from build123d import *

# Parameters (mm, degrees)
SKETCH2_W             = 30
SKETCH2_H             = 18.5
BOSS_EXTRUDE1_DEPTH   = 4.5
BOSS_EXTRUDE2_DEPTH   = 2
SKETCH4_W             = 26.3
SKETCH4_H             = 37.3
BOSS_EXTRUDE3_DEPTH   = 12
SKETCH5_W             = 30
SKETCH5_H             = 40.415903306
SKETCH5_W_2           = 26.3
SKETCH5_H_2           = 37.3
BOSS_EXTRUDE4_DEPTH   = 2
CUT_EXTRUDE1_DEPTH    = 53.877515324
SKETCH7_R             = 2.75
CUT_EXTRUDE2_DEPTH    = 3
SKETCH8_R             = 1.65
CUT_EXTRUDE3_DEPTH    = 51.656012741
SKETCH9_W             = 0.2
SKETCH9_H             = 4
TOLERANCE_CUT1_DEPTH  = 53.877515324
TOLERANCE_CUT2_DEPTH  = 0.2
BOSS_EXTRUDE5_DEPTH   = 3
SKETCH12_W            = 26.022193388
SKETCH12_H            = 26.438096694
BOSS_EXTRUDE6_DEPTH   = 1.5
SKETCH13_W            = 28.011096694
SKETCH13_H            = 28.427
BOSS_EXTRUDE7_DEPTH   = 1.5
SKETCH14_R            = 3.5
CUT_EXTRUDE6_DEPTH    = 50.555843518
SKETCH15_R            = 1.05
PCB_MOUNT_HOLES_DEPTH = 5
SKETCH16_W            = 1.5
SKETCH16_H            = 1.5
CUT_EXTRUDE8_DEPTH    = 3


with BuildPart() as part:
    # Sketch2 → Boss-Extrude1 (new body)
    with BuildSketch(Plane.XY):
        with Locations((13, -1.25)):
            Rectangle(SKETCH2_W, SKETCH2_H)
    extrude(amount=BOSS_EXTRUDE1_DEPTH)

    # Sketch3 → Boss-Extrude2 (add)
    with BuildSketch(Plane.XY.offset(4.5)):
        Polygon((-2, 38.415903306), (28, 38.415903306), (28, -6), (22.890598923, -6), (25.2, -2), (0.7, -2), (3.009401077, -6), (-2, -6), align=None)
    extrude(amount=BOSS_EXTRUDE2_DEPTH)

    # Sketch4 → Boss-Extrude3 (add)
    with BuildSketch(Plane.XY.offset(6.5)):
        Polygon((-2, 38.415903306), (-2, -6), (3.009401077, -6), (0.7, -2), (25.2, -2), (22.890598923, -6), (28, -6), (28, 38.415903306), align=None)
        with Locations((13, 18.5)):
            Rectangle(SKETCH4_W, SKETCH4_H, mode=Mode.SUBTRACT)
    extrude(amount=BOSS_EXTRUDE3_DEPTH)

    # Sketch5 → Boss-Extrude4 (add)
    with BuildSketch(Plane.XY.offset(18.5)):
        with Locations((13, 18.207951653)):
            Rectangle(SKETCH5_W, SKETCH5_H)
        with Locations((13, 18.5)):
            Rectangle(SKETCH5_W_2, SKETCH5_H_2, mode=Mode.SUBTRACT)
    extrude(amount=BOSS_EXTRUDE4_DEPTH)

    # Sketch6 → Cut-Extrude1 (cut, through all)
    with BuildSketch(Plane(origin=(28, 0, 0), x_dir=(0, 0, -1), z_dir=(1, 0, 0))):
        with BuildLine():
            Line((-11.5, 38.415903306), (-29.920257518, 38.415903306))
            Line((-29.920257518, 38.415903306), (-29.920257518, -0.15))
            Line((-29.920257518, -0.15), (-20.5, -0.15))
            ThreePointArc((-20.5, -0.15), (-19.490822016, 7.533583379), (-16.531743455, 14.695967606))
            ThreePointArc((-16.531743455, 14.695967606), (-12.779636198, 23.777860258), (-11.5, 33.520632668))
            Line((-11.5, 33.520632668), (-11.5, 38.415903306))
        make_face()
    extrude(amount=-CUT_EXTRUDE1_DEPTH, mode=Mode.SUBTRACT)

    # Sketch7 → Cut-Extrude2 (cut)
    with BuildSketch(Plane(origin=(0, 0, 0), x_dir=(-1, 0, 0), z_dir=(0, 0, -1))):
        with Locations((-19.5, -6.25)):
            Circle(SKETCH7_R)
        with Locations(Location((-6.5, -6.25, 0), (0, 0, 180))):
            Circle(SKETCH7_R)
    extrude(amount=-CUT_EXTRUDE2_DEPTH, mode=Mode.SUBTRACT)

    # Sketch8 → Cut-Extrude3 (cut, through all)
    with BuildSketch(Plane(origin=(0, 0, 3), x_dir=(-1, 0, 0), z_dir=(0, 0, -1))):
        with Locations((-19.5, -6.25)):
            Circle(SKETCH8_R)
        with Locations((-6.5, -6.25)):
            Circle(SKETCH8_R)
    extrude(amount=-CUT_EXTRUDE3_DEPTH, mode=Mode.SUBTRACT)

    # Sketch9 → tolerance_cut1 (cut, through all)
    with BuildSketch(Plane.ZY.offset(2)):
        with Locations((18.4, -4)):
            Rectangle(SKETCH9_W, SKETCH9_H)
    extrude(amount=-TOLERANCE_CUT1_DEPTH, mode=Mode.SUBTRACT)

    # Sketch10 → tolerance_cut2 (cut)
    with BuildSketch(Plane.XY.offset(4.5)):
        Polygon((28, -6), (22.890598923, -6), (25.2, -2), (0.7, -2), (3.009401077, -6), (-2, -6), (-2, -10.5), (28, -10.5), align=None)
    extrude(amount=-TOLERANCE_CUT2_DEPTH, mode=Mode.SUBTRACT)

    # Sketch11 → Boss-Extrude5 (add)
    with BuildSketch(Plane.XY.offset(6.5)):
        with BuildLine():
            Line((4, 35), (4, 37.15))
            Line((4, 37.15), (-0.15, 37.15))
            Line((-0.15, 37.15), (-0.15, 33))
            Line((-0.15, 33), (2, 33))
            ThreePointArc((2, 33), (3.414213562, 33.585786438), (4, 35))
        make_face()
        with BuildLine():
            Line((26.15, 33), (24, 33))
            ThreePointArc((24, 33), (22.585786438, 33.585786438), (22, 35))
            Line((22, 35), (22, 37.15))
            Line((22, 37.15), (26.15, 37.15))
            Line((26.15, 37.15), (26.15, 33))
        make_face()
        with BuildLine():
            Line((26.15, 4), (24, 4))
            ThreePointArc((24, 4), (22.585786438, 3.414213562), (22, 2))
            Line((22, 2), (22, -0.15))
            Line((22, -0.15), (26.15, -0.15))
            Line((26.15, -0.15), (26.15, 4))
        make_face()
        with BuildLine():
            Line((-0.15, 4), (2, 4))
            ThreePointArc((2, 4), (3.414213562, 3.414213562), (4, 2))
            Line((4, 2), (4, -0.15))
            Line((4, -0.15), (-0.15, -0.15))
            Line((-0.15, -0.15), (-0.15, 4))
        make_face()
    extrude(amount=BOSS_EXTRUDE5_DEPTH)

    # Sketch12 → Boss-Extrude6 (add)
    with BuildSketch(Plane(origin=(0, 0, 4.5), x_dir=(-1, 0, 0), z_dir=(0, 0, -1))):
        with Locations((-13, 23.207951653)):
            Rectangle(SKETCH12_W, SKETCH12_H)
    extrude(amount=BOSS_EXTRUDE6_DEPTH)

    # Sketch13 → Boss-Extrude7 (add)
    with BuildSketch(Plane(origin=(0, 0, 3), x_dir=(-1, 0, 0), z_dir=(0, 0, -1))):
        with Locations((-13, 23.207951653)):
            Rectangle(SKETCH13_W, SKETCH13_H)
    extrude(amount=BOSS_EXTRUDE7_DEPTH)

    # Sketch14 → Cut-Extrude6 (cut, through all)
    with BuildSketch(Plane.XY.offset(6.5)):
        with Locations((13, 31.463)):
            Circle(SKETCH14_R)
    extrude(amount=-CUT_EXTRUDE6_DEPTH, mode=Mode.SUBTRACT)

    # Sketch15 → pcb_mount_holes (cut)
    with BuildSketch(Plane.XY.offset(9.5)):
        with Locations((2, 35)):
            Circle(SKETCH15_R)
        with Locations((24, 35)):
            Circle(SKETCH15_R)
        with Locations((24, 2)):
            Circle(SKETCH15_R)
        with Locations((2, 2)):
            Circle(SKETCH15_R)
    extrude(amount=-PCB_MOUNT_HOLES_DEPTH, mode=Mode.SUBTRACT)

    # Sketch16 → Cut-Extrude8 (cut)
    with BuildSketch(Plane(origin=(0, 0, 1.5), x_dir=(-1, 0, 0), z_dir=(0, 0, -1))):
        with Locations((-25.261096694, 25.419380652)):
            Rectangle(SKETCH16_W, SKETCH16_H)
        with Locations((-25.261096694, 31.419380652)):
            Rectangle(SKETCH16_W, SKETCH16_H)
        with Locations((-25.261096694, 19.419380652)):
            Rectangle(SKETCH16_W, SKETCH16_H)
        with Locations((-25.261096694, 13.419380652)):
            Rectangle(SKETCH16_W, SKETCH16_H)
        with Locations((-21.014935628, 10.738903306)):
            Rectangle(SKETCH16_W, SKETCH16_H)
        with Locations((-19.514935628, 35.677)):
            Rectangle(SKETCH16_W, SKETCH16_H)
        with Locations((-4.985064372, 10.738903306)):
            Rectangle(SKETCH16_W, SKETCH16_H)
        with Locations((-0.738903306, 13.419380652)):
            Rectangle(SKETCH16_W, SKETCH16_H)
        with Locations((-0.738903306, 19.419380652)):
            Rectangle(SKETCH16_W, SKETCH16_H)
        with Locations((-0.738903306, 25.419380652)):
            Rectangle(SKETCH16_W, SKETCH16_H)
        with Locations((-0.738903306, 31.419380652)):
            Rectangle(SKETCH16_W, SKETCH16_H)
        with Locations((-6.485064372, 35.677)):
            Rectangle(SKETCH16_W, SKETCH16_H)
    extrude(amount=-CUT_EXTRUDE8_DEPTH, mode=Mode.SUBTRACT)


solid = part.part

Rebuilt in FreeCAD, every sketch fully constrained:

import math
import FreeCAD as App
import Part
import Sketcher
from FreeCAD import Vector
Q = App.Units.Quantity

doc = App.newDocument("Part")
params = doc.addObject("Spreadsheet::Sheet", "Params")
for row, (alias, value) in enumerate([
    ("sketch1_width", "30 mm"),
    ("sketch1_height", "18.5 mm"),
    ("pad1_length", "4.5 mm"),
    ("sketch2_width", "30 mm"),
    ("sketch2_width2", "24.5 mm"),
    ("pad2_length", "2 mm"),
    ("sketch3_width", "30 mm"),
    ("sketch3_width2", "24.5 mm"),
    ("sketch3_width3", "26.3 mm"),
    ("sketch3_height", "37.3 mm"),
    ("pad3_length", "12 mm"),
    ("sketch4_width", "30 mm"),
    ("sketch4_width2", "26.3 mm"),
    ("sketch4_height", "37.3 mm"),
    ("pad4_length", "2 mm"),
    ("sketch6_diameter", "5.5 mm"),
    ("pocket2_length", "3 mm"),
    ("sketch7_diameter", "3.3 mm"),
    ("sketch8_width", "4 mm"),
    ("sketch8_height", "0.2 mm"),
    ("sketch9_width", "30 mm"),
    ("sketch9_width2", "24.5 mm"),
    ("sketch9_height", "4.5 mm"),
    ("pocket5_length", "0.2 mm"),
    ("sketch10_radius", "2 mm"),
    ("sketch10_width", "4.15 mm"),
    ("pad5_length", "3 mm"),
    ("pad6_length", "1.5 mm"),
    ("pad7_length", "1.5 mm"),
    ("sketch13_diameter", "7 mm"),
    ("sketch14_diameter", "2.1 mm"),
    ("pocket7_length", "5 mm"),
    ("sketch15_width", "1.5 mm"),
    ("pocket8_length", "3 mm"),
], start=1):
    params.set(f"A{row}", alias)
    params.set(f"B{row}", "=" + value)
    params.setAlias(f"B{row}", alias)

body = doc.addObject("PartDesign::Body", "Body")

# Sketch on XY plane
sketch1 = body.newObject("Sketcher::SketchObject", "Sketch")
sketch1.AttachmentSupport = (doc.getObject("XY_Plane"), [""])
sketch1.MapMode = "FlatFace"
sketch1.addGeometry([
    Part.LineSegment(Vector(-2, 8, 0), Vector(-2, -10, 0)),
    Part.LineSegment(Vector(-2, -10, 0), Vector(28, -10, 0)),
    Part.LineSegment(Vector(28, -10, 0), Vector(28, 8, 0)),
    Part.LineSegment(Vector(28, 8, 0), Vector(-2, 8, 0)),
], False)
sketch1.addConstraint([
    Sketcher.Constraint("Coincident", 0, 2, 1, 1),
    Sketcher.Constraint("Coincident", 1, 2, 2, 1),
    Sketcher.Constraint("Coincident", 2, 2, 3, 1),
    Sketcher.Constraint("Coincident", 3, 2, 0, 1),
    Sketcher.Constraint("Vertical", 0),
    Sketcher.Constraint("Horizontal", 1),
    Sketcher.Constraint("Vertical", 2),
    Sketcher.Constraint("Horizontal", 3),
    Sketcher.Constraint("DistanceX", 1, 1, 1, 2, 30.0),
    Sketcher.Constraint("DistanceY", 0, 2, 0, 1, 18.5),
    Sketcher.Constraint("DistanceX", 0, 2, -1, 1, 2.0),
    Sketcher.Constraint("DistanceY", -1, 1, 2, 2, 8.0),
])
sketch1.setExpression("Constraints[8]", "Params.sketch1_width")
sketch1.setExpression("Constraints[9]", "Params.sketch1_height")
pad1 = body.newObject("PartDesign::Pad", "Pad")
pad1.Profile = sketch1
pad1.setExpression("Length", "Params.pad1_length")

# Sketch on XY plane
sketch2 = body.newObject("Sketcher::SketchObject", "Sketch001")
sketch2.AttachmentSupport = (doc.getObject("XY_Plane"), [""])
sketch2.MapMode = "FlatFace"
sketch2.AttachmentOffset = App.Placement(Vector(0, 0, 4.5), App.Rotation())
sketch2.addGeometry([
    Part.LineSegment(Vector(28, 38.4, 0), Vector(-2, 38.4, 0)),  # 0
    Part.LineSegment(Vector(-2, 38.4, 0), Vector(-2, -6, 0)),  # 1
    Part.LineSegment(Vector(-2, -6, 0), Vector(3, -6, 0)),  # 2
    Part.LineSegment(Vector(3, -6, 0), Vector(0.7, -2, 0)),  # 3
    Part.LineSegment(Vector(0.7, -2, 0), Vector(25.2, -2, 0)),  # 4
    Part.LineSegment(Vector(25.2, -2, 0), Vector(22.9, -6, 0)),  # 5
    Part.LineSegment(Vector(22.9, -6, 0), Vector(28, -6, 0)),  # 6
    Part.LineSegment(Vector(28, -6, 0), Vector(28, 38.4, 0)),  # 7
], False)
sketch2.addConstraint([
    Sketcher.Constraint("Coincident", 0, 2, 1, 1),
    Sketcher.Constraint("Coincident", 1, 2, 2, 1),
    Sketcher.Constraint("Coincident", 2, 2, 3, 1),
    Sketcher.Constraint("Coincident", 3, 2, 4, 1),
    Sketcher.Constraint("Coincident", 4, 2, 5, 1),
    Sketcher.Constraint("Coincident", 5, 2, 6, 1),
    Sketcher.Constraint("Coincident", 6, 2, 7, 1),
    Sketcher.Constraint("Coincident", 7, 2, 0, 1),
    Sketcher.Constraint("Horizontal", 0),
    Sketcher.Constraint("Vertical", 1),
    Sketcher.Constraint("Horizontal", 2),
    Sketcher.Constraint("Horizontal", 4),
    Sketcher.Constraint("Horizontal", 6),
    Sketcher.Constraint("Vertical", 7),
    Sketcher.Constraint("Horizontal", 2, 2, 5, 2),
    Sketcher.Constraint("Equal", 3, 5),
    Sketcher.Constraint("DistanceX", 0, 2, 0, 1, 30.0),
    Sketcher.Constraint("Angle", 3, Q("120 deg")),
    Sketcher.Constraint("DistanceX", 4, 1, 4, 2, 24.5),
    Sketcher.Constraint("DistanceX", 0, 2, -1, 1, 2.0),
    Sketcher.Constraint("DistanceY", 1, 2, -1, 1, 6.0),
    Sketcher.Constraint("DistanceY", 3, 2, -1, 1, 2.0),
    Sketcher.Constraint("DistanceX", -1, 1, 3, 2, 0.7),
    Sketcher.Constraint("DistanceY", 1, 2, 1, 1, 44.415903),
])
sketch2.setExpression("Constraints[16]", "Params.sketch2_width")
sketch2.setExpression("Constraints[18]", "Params.sketch2_width2")
pad2 = body.newObject("PartDesign::Pad", "Pad001")
pad2.Profile = sketch2
pad2.setExpression("Length", "Params.pad2_length")

# Sketch on XY plane
sketch3 = body.newObject("Sketcher::SketchObject", "Sketch002")
sketch3.AttachmentSupport = (doc.getObject("XY_Plane"), [""])
sketch3.MapMode = "FlatFace"
sketch3.AttachmentOffset = App.Placement(Vector(0, 0, 6.5), App.Rotation())
sketch3.addGeometry([
    Part.LineSegment(Vector(-2, 38.4, 0), Vector(-2, -6, 0)),  # 0
    Part.LineSegment(Vector(-2, -6, 0), Vector(3, -6, 0)),  # 1
    Part.LineSegment(Vector(3, -6, 0), Vector(0.7, -2, 0)),  # 2
    Part.LineSegment(Vector(0.7, -2, 0), Vector(25.2, -2, 0)),  # 3
    Part.LineSegment(Vector(25.2, -2, 0), Vector(22.9, -6, 0)),  # 4
    Part.LineSegment(Vector(22.9, -6, 0), Vector(28, -6, 0)),  # 5
    Part.LineSegment(Vector(28, -6, 0), Vector(28, 38.4, 0)),  # 6
    Part.LineSegment(Vector(28, 38.4, 0), Vector(-2, 38.4, 0)),  # 7
    Part.LineSegment(Vector(26.1, -0.1, 0), Vector(-0.1, -0.1, 0)),  # 8
    Part.LineSegment(Vector(-0.1, -0.1, 0), Vector(-0.1, 37.1, 0)),  # 9
    Part.LineSegment(Vector(-0.1, 37.1, 0), Vector(26.1, 37.1, 0)),  # 10
    Part.LineSegment(Vector(26.1, 37.1, 0), Vector(26.1, -0.1, 0)),  # 11
], False)
sketch3.addConstraint([
    Sketcher.Constraint("Coincident", 0, 2, 1, 1),
    Sketcher.Constraint("Coincident", 1, 2, 2, 1),
    Sketcher.Constraint("Coincident", 2, 2, 3, 1),
    Sketcher.Constraint("Coincident", 3, 2, 4, 1),
    Sketcher.Constraint("Coincident", 4, 2, 5, 1),
    Sketcher.Constraint("Coincident", 5, 2, 6, 1),
    Sketcher.Constraint("Coincident", 6, 2, 7, 1),
    Sketcher.Constraint("Coincident", 7, 2, 0, 1),
    Sketcher.Constraint("Coincident", 8, 2, 9, 1),
    Sketcher.Constraint("Coincident", 9, 2, 10, 1),
    Sketcher.Constraint("Coincident", 10, 2, 11, 1),
    Sketcher.Constraint("Coincident", 11, 2, 8, 1),
    Sketcher.Constraint("Vertical", 0),
    Sketcher.Constraint("Horizontal", 1),
    Sketcher.Constraint("Horizontal", 3),
    Sketcher.Constraint("Horizontal", 5),
    Sketcher.Constraint("Vertical", 6),
    Sketcher.Constraint("Horizontal", 7),
    Sketcher.Constraint("Horizontal", 8),
    Sketcher.Constraint("Vertical", 9),
    Sketcher.Constraint("Horizontal", 10),
    Sketcher.Constraint("Vertical", 11),
    Sketcher.Constraint("Horizontal", 1, 2, 4, 2),
    Sketcher.Constraint("Equal", 2, 4),
    Sketcher.Constraint("DistanceX", 7, 2, 7, 1, 30.0),
    Sketcher.Constraint("Angle", 2, Q("120 deg")),
    Sketcher.Constraint("DistanceX", 3, 1, 3, 2, 24.5),
    Sketcher.Constraint("DistanceX", 8, 2, 8, 1, 26.3),
    Sketcher.Constraint("DistanceY", 9, 1, 9, 2, 37.3),
    Sketcher.Constraint("DistanceX", 0, 2, -1, 1, 2.0),
    Sketcher.Constraint("DistanceY", 0, 2, -1, 1, 6.0),
    Sketcher.Constraint("DistanceY", 2, 2, -1, 1, 2.0),
    Sketcher.Constraint("DistanceX", -1, 1, 2, 2, 0.7),
    Sketcher.Constraint("DistanceX", 8, 2, -1, 1, 0.15),
    Sketcher.Constraint("DistanceY", 8, 2, -1, 1, 0.15),
    Sketcher.Constraint("DistanceY", 0, 2, 0, 1, 44.415903),
])
sketch3.setExpression("Constraints[24]", "Params.sketch3_width")
sketch3.setExpression("Constraints[26]", "Params.sketch3_width2")
sketch3.setExpression("Constraints[27]", "Params.sketch3_width3")
sketch3.setExpression("Constraints[28]", "Params.sketch3_height")
pad3 = body.newObject("PartDesign::Pad", "Pad002")
pad3.Profile = sketch3
pad3.setExpression("Length", "Params.pad3_length")

# Sketch on XY plane
sketch4 = body.newObject("Sketcher::SketchObject", "Sketch003")
sketch4.AttachmentSupport = (doc.getObject("XY_Plane"), [""])
sketch4.MapMode = "FlatFace"
sketch4.AttachmentOffset = App.Placement(Vector(0, 0, 18.5), App.Rotation())
sketch4.addGeometry([
    Part.LineSegment(Vector(-2, 38, 0), Vector(-2, -2, 0)),  # 0
    Part.LineSegment(Vector(-2, -2, 0), Vector(28, -2, 0)),  # 1
    Part.LineSegment(Vector(28, -2, 0), Vector(28, 38, 0)),  # 2
    Part.LineSegment(Vector(28, 38, 0), Vector(-2, 38, 0)),  # 3
    Part.LineSegment(Vector(26, 0, 0), Vector(0, 0, 0)),  # 4
    Part.LineSegment(Vector(0, 0, 0), Vector(0, 37, 0)),  # 5
    Part.LineSegment(Vector(0, 37, 0), Vector(26, 37, 0)),  # 6
    Part.LineSegment(Vector(26, 37, 0), Vector(26, 0, 0)),  # 7
], False)
sketch4.addConstraint([
    Sketcher.Constraint("Coincident", 0, 2, 1, 1),
    Sketcher.Constraint("Coincident", 1, 2, 2, 1),
    Sketcher.Constraint("Coincident", 2, 2, 3, 1),
    Sketcher.Constraint("Coincident", 3, 2, 0, 1),
    Sketcher.Constraint("Coincident", 4, 2, 5, 1),
    Sketcher.Constraint("Coincident", 5, 2, 6, 1),
    Sketcher.Constraint("Coincident", 6, 2, 7, 1),
    Sketcher.Constraint("Coincident", 7, 2, 4, 1),
    Sketcher.Constraint("Vertical", 0),
    Sketcher.Constraint("Horizontal", 1),
    Sketcher.Constraint("Vertical", 2),
    Sketcher.Constraint("Horizontal", 3),
    Sketcher.Constraint("Horizontal", 4),
    Sketcher.Constraint("Vertical", 5),
    Sketcher.Constraint("Horizontal", 6),
    Sketcher.Constraint("Vertical", 7),
    Sketcher.Constraint("DistanceX", 1, 1, 1, 2, 30.0),
    Sketcher.Constraint("DistanceX", 4, 2, 4, 1, 26.3),
    Sketcher.Constraint("DistanceY", 5, 1, 5, 2, 37.3),
    Sketcher.Constraint("DistanceX", 0, 2, -1, 1, 2.0),
    Sketcher.Constraint("DistanceY", 0, 2, -1, 1, 2.0),
    Sketcher.Constraint("DistanceX", 4, 2, -1, 1, 0.15),
    Sketcher.Constraint("DistanceY", 4, 2, -1, 1, 0.15),
    Sketcher.Constraint("DistanceY", 0, 2, 0, 1, 40.415903),
])
sketch4.setExpression("Constraints[16]", "Params.sketch4_width")
sketch4.setExpression("Constraints[17]", "Params.sketch4_width2")
sketch4.setExpression("Constraints[18]", "Params.sketch4_height")
pad4 = body.newObject("PartDesign::Pad", "Pad003")
pad4.Profile = sketch4
pad4.setExpression("Length", "Params.pad4_length")

# Sketch on YZ plane
sketch5 = body.newObject("Sketcher::SketchObject", "Sketch004")
sketch5.AttachmentSupport = (doc.getObject("YZ_Plane"), [""])
sketch5.MapMode = "FlatFace"
sketch5.AttachmentOffset = App.Placement(Vector(0, 0, 28), App.Rotation())
sketch5.addGeometry([
    Part.LineSegment(Vector(38.4, 11.5, 0), Vector(38.4, 29.9, 0)),  # 0
    Part.LineSegment(Vector(38.4, 29.9, 0), Vector(-0.1, 29.9, 0)),  # 1
    Part.LineSegment(Vector(-0.1, 29.9, 0), Vector(-0.1, 20.5, 0)),  # 2
    Part.ArcOfCircle(Part.Circle(Vector(-0.1, -9.3, 0), Vector(0, 0, 1), 29.8), math.radians(60), math.radians(90)),  # 3
    Part.ArcOfCircle(Part.Circle(Vector(33.5, 49.2, 0), Vector(0, 0, 1), 37.7), math.radians(-120), math.radians(-90)),  # 4
    Part.LineSegment(Vector(33.5, 11.5, 0), Vector(38.4, 11.5, 0)),  # 5
], False)
sketch5.addConstraint([
    Sketcher.Constraint("Coincident", 0, 2, 1, 1),
    Sketcher.Constraint("Coincident", 1, 2, 2, 1),
    Sketcher.Constraint("Coincident", 2, 2, 3, 2),
    Sketcher.Constraint("Tangent", 3, 1, 4, 1),
    Sketcher.Constraint("Tangent", 4, 2, 5, 1),
    Sketcher.Constraint("Coincident", 5, 2, 0, 1),
    Sketcher.Constraint("Vertical", 0),
    Sketcher.Constraint("Horizontal", 1),
    Sketcher.Constraint("Vertical", 2),
    Sketcher.Constraint("Horizontal", 5),
    Sketcher.Constraint("Vertical", 3, 3, 1, 2),
    Sketcher.Constraint("DistanceY", 4, 2, 2, 2, 9.0),
    Sketcher.Constraint("DistanceY", -1, 1, 2, 2, 20.5),
    Sketcher.Constraint("DistanceX", 3, 3, -1, 1, 0.15),
    Sketcher.Constraint("Radius", 3, 29.754857),
    Sketcher.Constraint("Radius", 4, 37.729115),
    Sketcher.Constraint("DistanceX", 5, 1, 5, 2, 4.895271),
    Sketcher.Constraint("DistanceY", 0, 1, 0, 2, 18.420258),
])
pocket1 = body.newObject("PartDesign::Pocket", "Pocket")
pocket1.Profile = sketch5
pocket1.Type = "ThroughAll"

# Sketch on XY plane
sketch6 = body.newObject("Sketcher::SketchObject", "Sketch005")
sketch6.AttachmentSupport = (doc.getObject("XY_Plane"), [""])
sketch6.MapMode = "FlatFace"
sketch6.addGeometry([
    Part.Circle(Vector(19.5, -6.2, 0), Vector(0, 0, 1), 2.8),
    Part.Circle(Vector(6.5, -6.2, 0), Vector(0, 0, 1), 2.8),
], False)
sketch6.addConstraint([
    Sketcher.Constraint("Equal", 0, 1),
    Sketcher.Constraint("Horizontal", 0, 3, 1, 3),
    Sketcher.Constraint("Diameter", 0, 5.5),
    Sketcher.Constraint("DistanceX", 1, 3, 0, 3, 13.0),
    Sketcher.Constraint("DistanceX", -1, 1, 0, 3, 19.5),
    Sketcher.Constraint("DistanceY", 0, 3, -1, 1, 6.25),
])
sketch6.setExpression("Constraints[2]", "Params.sketch6_diameter")
pocket2 = body.newObject("PartDesign::Pocket", "Pocket001")
pocket2.Profile = sketch6
pocket2.setExpression("Length", "Params.pocket2_length")
pocket2.Reversed = True

# Sketch on XY plane
sketch7 = body.newObject("Sketcher::SketchObject", "Sketch006")
sketch7.AttachmentSupport = (doc.getObject("XY_Plane"), [""])
sketch7.MapMode = "FlatFace"
sketch7.AttachmentOffset = App.Placement(Vector(0, 0, 3), App.Rotation())
sketch7.addGeometry([
    Part.Circle(Vector(19.5, -6.2, 0), Vector(0, 0, 1), 1.6),
    Part.Circle(Vector(6.5, -6.2, 0), Vector(0, 0, 1), 1.6),
], False)
sketch7.addConstraint([
    Sketcher.Constraint("Equal", 0, 1),
    Sketcher.Constraint("Horizontal", 0, 3, 1, 3),
    Sketcher.Constraint("Diameter", 0, 3.3),
    Sketcher.Constraint("DistanceX", 1, 3, 0, 3, 13.0),
    Sketcher.Constraint("DistanceX", -1, 1, 0, 3, 19.5),
    Sketcher.Constraint("DistanceY", 0, 3, -1, 1, 6.25),
])
sketch7.setExpression("Constraints[2]", "Params.sketch7_diameter")
pocket3 = body.newObject("PartDesign::Pocket", "Pocket002")
pocket3.Profile = sketch7
pocket3.Type = "ThroughAll"
pocket3.Reversed = True

# Sketch on YZ plane
sketch8 = body.newObject("Sketcher::SketchObject", "Sketch007")
sketch8.AttachmentSupport = (doc.getObject("YZ_Plane"), [""])
sketch8.MapMode = "FlatFace"
sketch8.AttachmentOffset = App.Placement(Vector(0, 0, -2), App.Rotation())
sketch8.addGeometry([
    Part.LineSegment(Vector(-2, 18.3, 0), Vector(-6, 18.3, 0)),
    Part.LineSegment(Vector(-6, 18.3, 0), Vector(-6, 18.5, 0)),
    Part.LineSegment(Vector(-6, 18.5, 0), Vector(-2, 18.5, 0)),
    Part.LineSegment(Vector(-2, 18.5, 0), Vector(-2, 18.3, 0)),
], False)
sketch8.addConstraint([
    Sketcher.Constraint("Coincident", 0, 2, 1, 1),
    Sketcher.Constraint("Coincident", 1, 2, 2, 1),
    Sketcher.Constraint("Coincident", 2, 2, 3, 1),
    Sketcher.Constraint("Coincident", 3, 2, 0, 1),
    Sketcher.Constraint("Horizontal", 0),
    Sketcher.Constraint("Vertical", 1),
    Sketcher.Constraint("Horizontal", 2),
    Sketcher.Constraint("Vertical", 3),
    Sketcher.Constraint("DistanceX", 0, 2, 0, 1, 4.0),
    Sketcher.Constraint("DistanceY", 1, 1, 1, 2, 0.2),
    Sketcher.Constraint("DistanceX", 0, 2, -1, 1, 6.0),
    Sketcher.Constraint("DistanceY", -1, 1, 0, 2, 18.3),
])
sketch8.setExpression("Constraints[8]", "Params.sketch8_width")
sketch8.setExpression("Constraints[9]", "Params.sketch8_height")
pocket4 = body.newObject("PartDesign::Pocket", "Pocket003")
pocket4.Profile = sketch8
pocket4.Type = "ThroughAll"
pocket4.Reversed = True

# Sketch on XY plane
sketch9 = body.newObject("Sketcher::SketchObject", "Sketch008")
sketch9.AttachmentSupport = (doc.getObject("XY_Plane"), [""])
sketch9.MapMode = "FlatFace"
sketch9.AttachmentOffset = App.Placement(Vector(0, 0, 4.5), App.Rotation())
sketch9.addGeometry([
    Part.LineSegment(Vector(28, -6, 0), Vector(22.9, -6, 0)),  # 0
    Part.LineSegment(Vector(22.9, -6, 0), Vector(25.2, -2, 0)),  # 1
    Part.LineSegment(Vector(25.2, -2, 0), Vector(0.7, -2, 0)),  # 2
    Part.LineSegment(Vector(0.7, -2, 0), Vector(3, -6, 0)),  # 3
    Part.LineSegment(Vector(3, -6, 0), Vector(-2, -6, 0)),  # 4
    Part.LineSegment(Vector(-2, -6, 0), Vector(-2, -10.5, 0)),  # 5
    Part.LineSegment(Vector(-2, -10.5, 0), Vector(28, -10.5, 0)),  # 6
    Part.LineSegment(Vector(28, -10.5, 0), Vector(28, -6, 0)),  # 7
], False)
sketch9.addConstraint([
    Sketcher.Constraint("Coincident", 0, 2, 1, 1),
    Sketcher.Constraint("Coincident", 1, 2, 2, 1),
    Sketcher.Constraint("Coincident", 2, 2, 3, 1),
    Sketcher.Constraint("Coincident", 3, 2, 4, 1),
    Sketcher.Constraint("Coincident", 4, 2, 5, 1),
    Sketcher.Constraint("Coincident", 5, 2, 6, 1),
    Sketcher.Constraint("Coincident", 6, 2, 7, 1),
    Sketcher.Constraint("Coincident", 7, 2, 0, 1),
    Sketcher.Constraint("Horizontal", 0),
    Sketcher.Constraint("Horizontal", 2),
    Sketcher.Constraint("Horizontal", 4),
    Sketcher.Constraint("Vertical", 5),
    Sketcher.Constraint("Horizontal", 6),
    Sketcher.Constraint("Vertical", 7),
    Sketcher.Constraint("Horizontal", 0, 2, 3, 2),
    Sketcher.Constraint("Equal", 1, 3),
    Sketcher.Constraint("DistanceX", 6, 1, 6, 2, 30.0),
    Sketcher.Constraint("Angle", 1, Q("60 deg")),
    Sketcher.Constraint("DistanceX", 2, 2, 2, 1, 24.5),
    Sketcher.Constraint("DistanceY", 5, 2, 5, 1, 4.5),
    Sketcher.Constraint("DistanceY", 0, 2, -1, 1, 6.0),
    Sketcher.Constraint("DistanceY", 1, 2, -1, 1, 2.0),
    Sketcher.Constraint("DistanceX", 4, 2, -1, 1, 2.0),
    Sketcher.Constraint("DistanceX", -1, 1, 1, 2, 25.2),
])
sketch9.setExpression("Constraints[16]", "Params.sketch9_width")
sketch9.setExpression("Constraints[18]", "Params.sketch9_width2")
sketch9.setExpression("Constraints[19]", "Params.sketch9_height")
pocket5 = body.newObject("PartDesign::Pocket", "Pocket004")
pocket5.Profile = sketch9
pocket5.setExpression("Length", "Params.pocket5_length")

# Sketch on XY plane
sketch10 = body.newObject("Sketcher::SketchObject", "Sketch009")
sketch10.AttachmentSupport = (doc.getObject("XY_Plane"), [""])
sketch10.MapMode = "FlatFace"
sketch10.AttachmentOffset = App.Placement(Vector(0, 0, 6.5), App.Rotation())
sketch10.addGeometry([
    Part.LineSegment(Vector(4, 35, 0), Vector(4, 37.1, 0)),  # 0
    Part.LineSegment(Vector(4, 37.1, 0), Vector(-0.1, 37.1, 0)),  # 1
    Part.LineSegment(Vector(-0.1, 37.1, 0), Vector(-0.1, 33, 0)),  # 2
    Part.LineSegment(Vector(-0.1, 33, 0), Vector(2, 33, 0)),  # 3
    Part.ArcOfCircle(Part.Circle(Vector(2, 35, 0), Vector(0, 0, 1), 2), math.radians(-90), math.radians(0)),  # 4
    Part.LineSegment(Vector(24, 33, 0), Vector(26.1, 33, 0)),  # 5
    Part.LineSegment(Vector(26.1, 33, 0), Vector(26.1, 37.1, 0)),  # 6
    Part.LineSegment(Vector(26.1, 37.1, 0), Vector(22, 37.1, 0)),  # 7
    Part.LineSegment(Vector(22, 37.1, 0), Vector(22, 35, 0)),  # 8
    Part.ArcOfCircle(Part.Circle(Vector(24, 35, 0), Vector(0, 0, 1), 2), math.radians(-180), math.radians(-90)),  # 9
    Part.LineSegment(Vector(26.1, 4, 0), Vector(24, 4, 0)),  # 10
    Part.ArcOfCircle(Part.Circle(Vector(24, 2, 0), Vector(0, 0, 1), 2), math.radians(90), math.radians(180)),  # 11
    Part.LineSegment(Vector(22, 2, 0), Vector(22, -0.1, 0)),  # 12
    Part.LineSegment(Vector(22, -0.1, 0), Vector(26.1, -0.1, 0)),  # 13
    Part.LineSegment(Vector(26.1, -0.1, 0), Vector(26.1, 4, 0)),  # 14
    Part.LineSegment(Vector(2, 4, 0), Vector(-0.1, 4, 0)),  # 15
    Part.LineSegment(Vector(-0.1, 4, 0), Vector(-0.1, -0.1, 0)),  # 16
    Part.LineSegment(Vector(-0.1, -0.1, 0), Vector(4, -0.1, 0)),  # 17
    Part.LineSegment(Vector(4, -0.1, 0), Vector(4, 2, 0)),  # 18
    Part.ArcOfCircle(Part.Circle(Vector(2, 2, 0), Vector(0, 0, 1), 2), math.radians(0), math.radians(90)),  # 19
], False)
sketch10.addConstraint([
    Sketcher.Constraint("Coincident", 0, 2, 1, 1),
    Sketcher.Constraint("Coincident", 1, 2, 2, 1),
    Sketcher.Constraint("Coincident", 2, 2, 3, 1),
    Sketcher.Constraint("Tangent", 3, 2, 4, 1),
    Sketcher.Constraint("Tangent", 4, 2, 0, 1),
    Sketcher.Constraint("Coincident", 5, 2, 6, 1),
    Sketcher.Constraint("Coincident", 6, 2, 7, 1),
    Sketcher.Constraint("Coincident", 7, 2, 8, 1),
    Sketcher.Constraint("Tangent", 8, 2, 9, 1),
    Sketcher.Constraint("Tangent", 9, 2, 5, 1),
    Sketcher.Constraint("Tangent", 10, 2, 11, 1),
    Sketcher.Constraint("Tangent", 11, 2, 12, 1),
    Sketcher.Constraint("Coincident", 12, 2, 13, 1),
    Sketcher.Constraint("Coincident", 13, 2, 14, 1),
    Sketcher.Constraint("Coincident", 14, 2, 10, 1),
    Sketcher.Constraint("Coincident", 15, 2, 16, 1),
    Sketcher.Constraint("Coincident", 16, 2, 17, 1),
    Sketcher.Constraint("Coincident", 17, 2, 18, 1),
    Sketcher.Constraint("Tangent", 18, 2, 19, 1),
    Sketcher.Constraint("Tangent", 19, 2, 15, 1),
    Sketcher.Constraint("Vertical", 0),
    Sketcher.Constraint("Horizontal", 1),
    Sketcher.Constraint("Vertical", 2),
    Sketcher.Constraint("Horizontal", 3),
    Sketcher.Constraint("Horizontal", 5),
    Sketcher.Constraint("Vertical", 6),
    Sketcher.Constraint("Horizontal", 7),
    Sketcher.Constraint("Vertical", 8),
    Sketcher.Constraint("Horizontal", 10),
    Sketcher.Constraint("Vertical", 12),
    Sketcher.Constraint("Horizontal", 13),
    Sketcher.Constraint("Vertical", 14),
    Sketcher.Constraint("Horizontal", 15),
    Sketcher.Constraint("Vertical", 16),
    Sketcher.Constraint("Horizontal", 17),
    Sketcher.Constraint("Vertical", 18),
    Sketcher.Constraint("Equal", 4, 9),
    Sketcher.Constraint("Equal", 9, 11),
    Sketcher.Constraint("Equal", 11, 19),
    Sketcher.Constraint("Horizontal", 4, 3, 9, 3),
    Sketcher.Constraint("Horizontal", 11, 3, 19, 3),
    Sketcher.Constraint("Horizontal", 1, 2, 6, 2),
    Sketcher.Constraint("Horizontal", 13, 2, 16, 2),
    Sketcher.Constraint("Vertical", 9, 3, 11, 3),
    Sketcher.Constraint("Vertical", 4, 3, 19, 3),
    Sketcher.Constraint("Vertical", 6, 2, 13, 2),
    Sketcher.Constraint("Vertical", 2, 2, 15, 2),
    Sketcher.Constraint("Equal", 3, 5),
    Sketcher.Constraint("Equal", 15, 0),
    Sketcher.Constraint("Equal", 8, 12),
    Sketcher.Constraint("Radius", 4, 2.0),
    Sketcher.Constraint("DistanceX", -1, 1, 4, 3, 2.0),
    Sketcher.Constraint("DistanceY", -1, 1, 4, 3, 35.0),
    Sketcher.Constraint("DistanceX", -1, 1, 9, 3, 24.0),
    Sketcher.Constraint("DistanceY", -1, 1, 11, 3, 2.0),
    Sketcher.Constraint("DistanceX", 1, 2, 1, 1, 4.15),
])
sketch10.setExpression("Constraints[50]", "Params.sketch10_radius")
sketch10.setExpression("Constraints[55]", "Params.sketch10_width")
pad5 = body.newObject("PartDesign::Pad", "Pad004")
pad5.Profile = sketch10
pad5.setExpression("Length", "Params.pad5_length")

# Sketch on XY plane
sketch11 = body.newObject("Sketcher::SketchObject", "Sketch010")
sketch11.AttachmentSupport = (doc.getObject("XY_Plane"), [""])
sketch11.MapMode = "FlatFace"
sketch11.AttachmentOffset = App.Placement(Vector(0, 0, 4.5), App.Rotation())
sketch11.addGeometry([
    Part.LineSegment(Vector(26, 36, 0), Vector(26, 10, 0)),
    Part.LineSegment(Vector(26, 10, 0), Vector(0, 10, 0)),
    Part.LineSegment(Vector(0, 10, 0), Vector(0, 36, 0)),
    Part.LineSegment(Vector(0, 36, 0), Vector(26, 36, 0)),
], False)
sketch11.addConstraint([
    Sketcher.Constraint("Coincident", 0, 2, 1, 1),
    Sketcher.Constraint("Coincident", 1, 2, 2, 1),
    Sketcher.Constraint("Coincident", 2, 2, 3, 1),
    Sketcher.Constraint("Coincident", 3, 2, 0, 1),
    Sketcher.Constraint("Vertical", 0),
    Sketcher.Constraint("Horizontal", 1),
    Sketcher.Constraint("Vertical", 2),
    Sketcher.Constraint("Horizontal", 3),
    Sketcher.Constraint("DistanceY", -1, 1, 2, 2, 36.427),
    Sketcher.Constraint("DistanceX", 1, 2, 1, 1, 26.022193),
    Sketcher.Constraint("DistanceY", 0, 2, 0, 1, 26.438097),
    Sketcher.Constraint("DistanceX", -1, 1, 0, 2, 26.011097),
])
pad6 = body.newObject("PartDesign::Pad", "Pad005")
pad6.Profile = sketch11
pad6.setExpression("Length", "Params.pad6_length")
pad6.Reversed = True

# Sketch on XY plane
sketch12 = body.newObject("Sketcher::SketchObject", "Sketch011")
sketch12.AttachmentSupport = (doc.getObject("XY_Plane"), [""])
sketch12.MapMode = "FlatFace"
sketch12.AttachmentOffset = App.Placement(Vector(0, 0, 3), App.Rotation())
sketch12.addGeometry([
    Part.LineSegment(Vector(27, 37, 0), Vector(27, 9, 0)),
    Part.LineSegment(Vector(27, 9, 0), Vector(-1, 9, 0)),
    Part.LineSegment(Vector(-1, 9, 0), Vector(-1, 37, 0)),
    Part.LineSegment(Vector(-1, 37, 0), Vector(27, 37, 0)),
], False)
sketch12.addConstraint([
    Sketcher.Constraint("Coincident", 0, 2, 1, 1),
    Sketcher.Constraint("Coincident", 1, 2, 2, 1),
    Sketcher.Constraint("Coincident", 2, 2, 3, 1),
    Sketcher.Constraint("Coincident", 3, 2, 0, 1),
    Sketcher.Constraint("Vertical", 0),
    Sketcher.Constraint("Horizontal", 1),
    Sketcher.Constraint("Vertical", 2),
    Sketcher.Constraint("Horizontal", 3),
    Sketcher.Constraint("DistanceY", 0, 2, 0, 1, 28.427),
    Sketcher.Constraint("DistanceX", 1, 2, 1, 1, 28.011097),
    Sketcher.Constraint("DistanceX", -1, 1, 0, 2, 27.005548),
    Sketcher.Constraint("DistanceY", -1, 1, 0, 2, 8.994452),
])
pad7 = body.newObject("PartDesign::Pad", "Pad006")
pad7.Profile = sketch12
pad7.setExpression("Length", "Params.pad7_length")
pad7.Reversed = True

# Sketch on XY plane
sketch13 = body.newObject("Sketcher::SketchObject", "Sketch012")
sketch13.AttachmentSupport = (doc.getObject("XY_Plane"), [""])
sketch13.MapMode = "FlatFace"
sketch13.AttachmentOffset = App.Placement(Vector(0, 0, 6.5), App.Rotation())
sketch13.addGeometry(Part.Circle(Vector(13, 31.5, 0), Vector(0, 0, 1), 3.5), False)
sketch13.addConstraint([
    Sketcher.Constraint("Diameter", 0, 7.0),
    Sketcher.Constraint("DistanceX", -1, 1, 0, 3, 13.0),
    Sketcher.Constraint("DistanceY", -1, 1, 0, 3, 31.463),
])
sketch13.setExpression("Constraints[0]", "Params.sketch13_diameter")
pocket6 = body.newObject("PartDesign::Pocket", "Pocket005")
pocket6.Profile = sketch13
pocket6.Type = "ThroughAll"

# Sketch on XY plane
sketch14 = body.newObject("Sketcher::SketchObject", "Sketch013")
sketch14.AttachmentSupport = (doc.getObject("XY_Plane"), [""])
sketch14.MapMode = "FlatFace"
sketch14.AttachmentOffset = App.Placement(Vector(0, 0, 9.5), App.Rotation())
sketch14.addGeometry([
    Part.Circle(Vector(2, 35, 0), Vector(0, 0, 1), 1.1),
    Part.Circle(Vector(24, 35, 0), Vector(0, 0, 1), 1.1),
    Part.Circle(Vector(24, 2, 0), Vector(0, 0, 1), 1.1),
    Part.Circle(Vector(2, 2, 0), Vector(0, 0, 1), 1.1),
], False)
sketch14.addConstraint([
    Sketcher.Constraint("Equal", 0, 1),
    Sketcher.Constraint("Equal", 1, 2),
    Sketcher.Constraint("Equal", 2, 3),
    Sketcher.Constraint("Horizontal", 0, 3, 1, 3),
    Sketcher.Constraint("Horizontal", 2, 3, 3, 3),
    Sketcher.Constraint("Vertical", 1, 3, 2, 3),
    Sketcher.Constraint("Vertical", 0, 3, 3, 3),
    Sketcher.Constraint("Diameter", 0, 2.1),
    Sketcher.Constraint("DistanceX", -1, 1, 0, 3, 2.0),
    Sketcher.Constraint("DistanceY", -1, 1, 0, 3, 35.0),
    Sketcher.Constraint("DistanceX", -1, 1, 1, 3, 24.0),
    Sketcher.Constraint("DistanceY", -1, 1, 2, 3, 2.0),
])
sketch14.setExpression("Constraints[7]", "Params.sketch14_diameter")
pocket7 = body.newObject("PartDesign::Pocket", "Pocket006")
pocket7.Profile = sketch14
pocket7.setExpression("Length", "Params.pocket7_length")

# Sketch on XY plane
sketch15 = body.newObject("Sketcher::SketchObject", "Sketch014")
sketch15.AttachmentSupport = (doc.getObject("XY_Plane"), [""])
sketch15.MapMode = "FlatFace"
sketch15.AttachmentOffset = App.Placement(Vector(0, 0, 1.5), App.Rotation())
sketch15.addGeometry([
    Part.LineSegment(Vector(26, 26.2, 0), Vector(26, 24.7, 0)),  # 0
    Part.LineSegment(Vector(26, 24.7, 0), Vector(24.5, 24.7, 0)),  # 1
    Part.LineSegment(Vector(24.5, 24.7, 0), Vector(24.5, 26.2, 0)),  # 2
    Part.LineSegment(Vector(24.5, 26.2, 0), Vector(26, 26.2, 0)),  # 3
    Part.LineSegment(Vector(26, 32.2, 0), Vector(26, 30.7, 0)),  # 4
    Part.LineSegment(Vector(26, 30.7, 0), Vector(24.5, 30.7, 0)),  # 5
    Part.LineSegment(Vector(24.5, 30.7, 0), Vector(24.5, 32.2, 0)),  # 6
    Part.LineSegment(Vector(24.5, 32.2, 0), Vector(26, 32.2, 0)),  # 7
    Part.LineSegment(Vector(26, 20.2, 0), Vector(26, 18.7, 0)),  # 8
    Part.LineSegment(Vector(26, 18.7, 0), Vector(24.5, 18.7, 0)),  # 9
    Part.LineSegment(Vector(24.5, 18.7, 0), Vector(24.5, 20.2, 0)),  # 10
    Part.LineSegment(Vector(24.5, 20.2, 0), Vector(26, 20.2, 0)),  # 11
    Part.LineSegment(Vector(26, 14.2, 0), Vector(26, 12.7, 0)),  # 12
    Part.LineSegment(Vector(26, 12.7, 0), Vector(24.5, 12.7, 0)),  # 13
    Part.LineSegment(Vector(24.5, 12.7, 0), Vector(24.5, 14.2, 0)),  # 14
    Part.LineSegment(Vector(24.5, 14.2, 0), Vector(26, 14.2, 0)),  # 15
    Part.LineSegment(Vector(21.8, 11.5, 0), Vector(21.8, 10, 0)),  # 16
    Part.LineSegment(Vector(21.8, 10, 0), Vector(20.3, 10, 0)),  # 17
    Part.LineSegment(Vector(20.3, 10, 0), Vector(20.3, 11.5, 0)),  # 18
    Part.LineSegment(Vector(20.3, 11.5, 0), Vector(21.8, 11.5, 0)),  # 19
    Part.LineSegment(Vector(20.3, 36.4, 0), Vector(20.3, 34.9, 0)),  # 20
    Part.LineSegment(Vector(20.3, 34.9, 0), Vector(18.8, 34.9, 0)),  # 21
    Part.LineSegment(Vector(18.8, 34.9, 0), Vector(18.8, 36.4, 0)),  # 22
    Part.LineSegment(Vector(18.8, 36.4, 0), Vector(20.3, 36.4, 0)),  # 23
    Part.LineSegment(Vector(5.7, 11.5, 0), Vector(5.7, 10, 0)),  # 24
    Part.LineSegment(Vector(5.7, 10, 0), Vector(4.2, 10, 0)),  # 25
    Part.LineSegment(Vector(4.2, 10, 0), Vector(4.2, 11.5, 0)),  # 26
    Part.LineSegment(Vector(4.2, 11.5, 0), Vector(5.7, 11.5, 0)),  # 27
    Part.LineSegment(Vector(1.5, 14.2, 0), Vector(1.5, 12.7, 0)),  # 28
    Part.LineSegment(Vector(1.5, 12.7, 0), Vector(0, 12.7, 0)),  # 29
    Part.LineSegment(Vector(0, 12.7, 0), Vector(0, 14.2, 0)),  # 30
    Part.LineSegment(Vector(0, 14.2, 0), Vector(1.5, 14.2, 0)),  # 31
    Part.LineSegment(Vector(1.5, 20.2, 0), Vector(1.5, 18.7, 0)),  # 32
    Part.LineSegment(Vector(1.5, 18.7, 0), Vector(0, 18.7, 0)),  # 33
    Part.LineSegment(Vector(0, 18.7, 0), Vector(0, 20.2, 0)),  # 34
    Part.LineSegment(Vector(0, 20.2, 0), Vector(1.5, 20.2, 0)),  # 35
    Part.LineSegment(Vector(1.5, 26.2, 0), Vector(1.5, 24.7, 0)),  # 36
    Part.LineSegment(Vector(1.5, 24.7, 0), Vector(0, 24.7, 0)),  # 37
    Part.LineSegment(Vector(0, 24.7, 0), Vector(0, 26.2, 0)),  # 38
    Part.LineSegment(Vector(0, 26.2, 0), Vector(1.5, 26.2, 0)),  # 39
    Part.LineSegment(Vector(1.5, 32.2, 0), Vector(1.5, 30.7, 0)),  # 40
    Part.LineSegment(Vector(1.5, 30.7, 0), Vector(0, 30.7, 0)),  # 41
    Part.LineSegment(Vector(0, 30.7, 0), Vector(0, 32.2, 0)),  # 42
    Part.LineSegment(Vector(0, 32.2, 0), Vector(1.5, 32.2, 0)),  # 43
    Part.LineSegment(Vector(7.2, 36.4, 0), Vector(7.2, 34.9, 0)),  # 44
    Part.LineSegment(Vector(7.2, 34.9, 0), Vector(5.7, 34.9, 0)),  # 45
    Part.LineSegment(Vector(5.7, 34.9, 0), Vector(5.7, 36.4, 0)),  # 46
    Part.LineSegment(Vector(5.7, 36.4, 0), Vector(7.2, 36.4, 0)),  # 47
], False)
sketch15.addConstraint([
    Sketcher.Constraint("Coincident", 0, 2, 1, 1),
    Sketcher.Constraint("Coincident", 1, 2, 2, 1),
    Sketcher.Constraint("Coincident", 2, 2, 3, 1),
    Sketcher.Constraint("Coincident", 3, 2, 0, 1),
    Sketcher.Constraint("Coincident", 4, 2, 5, 1),
    Sketcher.Constraint("Coincident", 5, 2, 6, 1),
    Sketcher.Constraint("Coincident", 6, 2, 7, 1),
    Sketcher.Constraint("Coincident", 7, 2, 4, 1),
    Sketcher.Constraint("Coincident", 8, 2, 9, 1),
    Sketcher.Constraint("Coincident", 9, 2, 10, 1),
    Sketcher.Constraint("Coincident", 10, 2, 11, 1),
    Sketcher.Constraint("Coincident", 11, 2, 8, 1),
    Sketcher.Constraint("Coincident", 12, 2, 13, 1),
    Sketcher.Constraint("Coincident", 13, 2, 14, 1),
    Sketcher.Constraint("Coincident", 14, 2, 15, 1),
    Sketcher.Constraint("Coincident", 15, 2, 12, 1),
    Sketcher.Constraint("Coincident", 16, 2, 17, 1),
    Sketcher.Constraint("Coincident", 17, 2, 18, 1),
    Sketcher.Constraint("Coincident", 18, 2, 19, 1),
    Sketcher.Constraint("Coincident", 19, 2, 16, 1),
    Sketcher.Constraint("Coincident", 20, 2, 21, 1),
    Sketcher.Constraint("Coincident", 21, 2, 22, 1),
    Sketcher.Constraint("Coincident", 22, 2, 23, 1),
    Sketcher.Constraint("Coincident", 23, 2, 20, 1),
    Sketcher.Constraint("Coincident", 24, 2, 25, 1),
    Sketcher.Constraint("Coincident", 25, 2, 26, 1),
    Sketcher.Constraint("Coincident", 26, 2, 27, 1),
    Sketcher.Constraint("Coincident", 27, 2, 24, 1),
    Sketcher.Constraint("Coincident", 28, 2, 29, 1),
    Sketcher.Constraint("Coincident", 29, 2, 30, 1),
    Sketcher.Constraint("Coincident", 30, 2, 31, 1),
    Sketcher.Constraint("Coincident", 31, 2, 28, 1),
    Sketcher.Constraint("Coincident", 32, 2, 33, 1),
    Sketcher.Constraint("Coincident", 33, 2, 34, 1),
    Sketcher.Constraint("Coincident", 34, 2, 35, 1),
    Sketcher.Constraint("Coincident", 35, 2, 32, 1),
    Sketcher.Constraint("Coincident", 36, 2, 37, 1),
    Sketcher.Constraint("Coincident", 37, 2, 38, 1),
    Sketcher.Constraint("Coincident", 38, 2, 39, 1),
    Sketcher.Constraint("Coincident", 39, 2, 36, 1),
    Sketcher.Constraint("Coincident", 40, 2, 41, 1),
    Sketcher.Constraint("Coincident", 41, 2, 42, 1),
    Sketcher.Constraint("Coincident", 42, 2, 43, 1),
    Sketcher.Constraint("Coincident", 43, 2, 40, 1),
    Sketcher.Constraint("Coincident", 44, 2, 45, 1),
    Sketcher.Constraint("Coincident", 45, 2, 46, 1),
    Sketcher.Constraint("Coincident", 46, 2, 47, 1),
    Sketcher.Constraint("Coincident", 47, 2, 44, 1),
    Sketcher.Constraint("Vertical", 0),
    Sketcher.Constraint("Horizontal", 1),
    Sketcher.Constraint("Vertical", 2),
    Sketcher.Constraint("Horizontal", 3),
    Sketcher.Constraint("Vertical", 4),
    Sketcher.Constraint("Horizontal", 5),
    Sketcher.Constraint("Vertical", 6),
    Sketcher.Constraint("Horizontal", 7),
    Sketcher.Constraint("Vertical", 8),
    Sketcher.Constraint("Horizontal", 9),
    Sketcher.Constraint("Vertical", 10),
    Sketcher.Constraint("Horizontal", 11),
    Sketcher.Constraint("Vertical", 12),
    Sketcher.Constraint("Horizontal", 13),
    Sketcher.Constraint("Vertical", 14),
    Sketcher.Constraint("Horizontal", 15),
    Sketcher.Constraint("Vertical", 16),
    Sketcher.Constraint("Horizontal", 17),
    Sketcher.Constraint("Vertical", 18),
    Sketcher.Constraint("Horizontal", 19),
    Sketcher.Constraint("Vertical", 20),
    Sketcher.Constraint("Horizontal", 21),
    Sketcher.Constraint("Vertical", 22),
    Sketcher.Constraint("Horizontal", 23),
    Sketcher.Constraint("Vertical", 24),
    Sketcher.Constraint("Horizontal", 25),
    Sketcher.Constraint("Vertical", 26),
    Sketcher.Constraint("Horizontal", 27),
    Sketcher.Constraint("Vertical", 28),
    Sketcher.Constraint("Horizontal", 29),
    Sketcher.Constraint("Vertical", 30),
    Sketcher.Constraint("Horizontal", 31),
    Sketcher.Constraint("Vertical", 32),
    Sketcher.Constraint("Horizontal", 33),
    Sketcher.Constraint("Vertical", 34),
    Sketcher.Constraint("Horizontal", 35),
    Sketcher.Constraint("Vertical", 36),
    Sketcher.Constraint("Horizontal", 37),
    Sketcher.Constraint("Vertical", 38),
    Sketcher.Constraint("Horizontal", 39),
    Sketcher.Constraint("Vertical", 40),
    Sketcher.Constraint("Horizontal", 41),
    Sketcher.Constraint("Vertical", 42),
    Sketcher.Constraint("Horizontal", 43),
    Sketcher.Constraint("Vertical", 44),
    Sketcher.Constraint("Horizontal", 45),
    Sketcher.Constraint("Vertical", 46),
    Sketcher.Constraint("Horizontal", 47),
    Sketcher.Constraint("Horizontal", 17, 2, 24, 2),
    Sketcher.Constraint("Horizontal", 19, 2, 26, 2),
    Sketcher.Constraint("Horizontal", 13, 2, 28, 2),
    Sketcher.Constraint("Horizontal", 15, 2, 30, 2),
    Sketcher.Constraint("Horizontal", 9, 2, 32, 2),
    Sketcher.Constraint("Horizontal", 11, 2, 34, 2),
    Sketcher.Constraint("Horizontal", 1, 2, 36, 2),
    Sketcher.Constraint("Horizontal", 3, 2, 38, 2),
    Sketcher.Constraint("Horizontal", 5, 2, 40, 2),
    Sketcher.Constraint("Horizontal", 7, 2, 42, 2),
    Sketcher.Constraint("Horizontal", 21, 2, 44, 2),
    Sketcher.Constraint("Horizontal", 23, 2, 46, 2),
    Sketcher.Constraint("Vertical", 3, 2, 4, 2),
    Sketcher.Constraint("Vertical", 2, 2, 5, 2),
    Sketcher.Constraint("Vertical", 7, 2, 8, 2),
    Sketcher.Constraint("Vertical", 6, 2, 9, 2),
    Sketcher.Constraint("Vertical", 11, 2, 12, 2),
    Sketcher.Constraint("Vertical", 10, 2, 13, 2),
    Sketcher.Constraint("Vertical", 18, 2, 20, 2),
    Sketcher.Constraint("Vertical", 31, 2, 32, 2),
    Sketcher.Constraint("Vertical", 30, 2, 33, 2),
    Sketcher.Constraint("Vertical", 35, 2, 36, 2),
    Sketcher.Constraint("Vertical", 34, 2, 37, 2),
    Sketcher.Constraint("Vertical", 39, 2, 40, 2),
    Sketcher.Constraint("Vertical", 38, 2, 41, 2),
    Sketcher.Constraint("Vertical", 27, 2, 45, 2),
    Sketcher.Constraint("Equal", 15, 17),
    Sketcher.Constraint("Equal", 19, 21),
    Sketcher.Constraint("Equal", 23, 25),
    Sketcher.Constraint("Equal", 27, 29),
    Sketcher.Constraint("Equal", 43, 45),
    Sketcher.Constraint("Equal", 47, 0),
    Sketcher.Constraint("Equal", 2, 4),
    Sketcher.Constraint("Equal", 6, 8),
    Sketcher.Constraint("Equal", 10, 12),
    Sketcher.Constraint("Equal", 14, 16),
    Sketcher.Constraint("Equal", 18, 20),
    Sketcher.Constraint("DistanceX", 1, 2, 1, 1, 1.5),
    Sketcher.Constraint("DistanceY", 0, 2, 4, 2, 6.0),
    Sketcher.Constraint("DistanceY", 8, 2, 0, 2, 6.0),
    Sketcher.Constraint("DistanceY", 12, 2, 8, 2, 6.0),
    Sketcher.Constraint("DistanceY", -1, 1, 20, 2, 34.927),
    Sketcher.Constraint("DistanceY", -1, 1, 0, 2, 24.669381),
    Sketcher.Constraint("DistanceX", 16, 2, 13, 2, 2.746161),
    Sketcher.Constraint("DistanceX", 24, 2, 17, 2, 14.529871),
    Sketcher.Constraint("DistanceX", 28, 2, 26, 2, 2.746161),
    Sketcher.Constraint("DistanceX", -1, 1, 0, 2, 26.011097),
    Sketcher.Constraint("DistanceY", -1, 1, 16, 2, 9.988903),
])
sketch15.setExpression("Constraints[133]", "Params.sketch15_width")
pocket8 = body.newObject("PartDesign::Pocket", "Pocket007")
pocket8.Profile = sketch15
pocket8.setExpression("Length", "Params.pocket8_length")
pocket8.Reversed = True

doc.recompute()
